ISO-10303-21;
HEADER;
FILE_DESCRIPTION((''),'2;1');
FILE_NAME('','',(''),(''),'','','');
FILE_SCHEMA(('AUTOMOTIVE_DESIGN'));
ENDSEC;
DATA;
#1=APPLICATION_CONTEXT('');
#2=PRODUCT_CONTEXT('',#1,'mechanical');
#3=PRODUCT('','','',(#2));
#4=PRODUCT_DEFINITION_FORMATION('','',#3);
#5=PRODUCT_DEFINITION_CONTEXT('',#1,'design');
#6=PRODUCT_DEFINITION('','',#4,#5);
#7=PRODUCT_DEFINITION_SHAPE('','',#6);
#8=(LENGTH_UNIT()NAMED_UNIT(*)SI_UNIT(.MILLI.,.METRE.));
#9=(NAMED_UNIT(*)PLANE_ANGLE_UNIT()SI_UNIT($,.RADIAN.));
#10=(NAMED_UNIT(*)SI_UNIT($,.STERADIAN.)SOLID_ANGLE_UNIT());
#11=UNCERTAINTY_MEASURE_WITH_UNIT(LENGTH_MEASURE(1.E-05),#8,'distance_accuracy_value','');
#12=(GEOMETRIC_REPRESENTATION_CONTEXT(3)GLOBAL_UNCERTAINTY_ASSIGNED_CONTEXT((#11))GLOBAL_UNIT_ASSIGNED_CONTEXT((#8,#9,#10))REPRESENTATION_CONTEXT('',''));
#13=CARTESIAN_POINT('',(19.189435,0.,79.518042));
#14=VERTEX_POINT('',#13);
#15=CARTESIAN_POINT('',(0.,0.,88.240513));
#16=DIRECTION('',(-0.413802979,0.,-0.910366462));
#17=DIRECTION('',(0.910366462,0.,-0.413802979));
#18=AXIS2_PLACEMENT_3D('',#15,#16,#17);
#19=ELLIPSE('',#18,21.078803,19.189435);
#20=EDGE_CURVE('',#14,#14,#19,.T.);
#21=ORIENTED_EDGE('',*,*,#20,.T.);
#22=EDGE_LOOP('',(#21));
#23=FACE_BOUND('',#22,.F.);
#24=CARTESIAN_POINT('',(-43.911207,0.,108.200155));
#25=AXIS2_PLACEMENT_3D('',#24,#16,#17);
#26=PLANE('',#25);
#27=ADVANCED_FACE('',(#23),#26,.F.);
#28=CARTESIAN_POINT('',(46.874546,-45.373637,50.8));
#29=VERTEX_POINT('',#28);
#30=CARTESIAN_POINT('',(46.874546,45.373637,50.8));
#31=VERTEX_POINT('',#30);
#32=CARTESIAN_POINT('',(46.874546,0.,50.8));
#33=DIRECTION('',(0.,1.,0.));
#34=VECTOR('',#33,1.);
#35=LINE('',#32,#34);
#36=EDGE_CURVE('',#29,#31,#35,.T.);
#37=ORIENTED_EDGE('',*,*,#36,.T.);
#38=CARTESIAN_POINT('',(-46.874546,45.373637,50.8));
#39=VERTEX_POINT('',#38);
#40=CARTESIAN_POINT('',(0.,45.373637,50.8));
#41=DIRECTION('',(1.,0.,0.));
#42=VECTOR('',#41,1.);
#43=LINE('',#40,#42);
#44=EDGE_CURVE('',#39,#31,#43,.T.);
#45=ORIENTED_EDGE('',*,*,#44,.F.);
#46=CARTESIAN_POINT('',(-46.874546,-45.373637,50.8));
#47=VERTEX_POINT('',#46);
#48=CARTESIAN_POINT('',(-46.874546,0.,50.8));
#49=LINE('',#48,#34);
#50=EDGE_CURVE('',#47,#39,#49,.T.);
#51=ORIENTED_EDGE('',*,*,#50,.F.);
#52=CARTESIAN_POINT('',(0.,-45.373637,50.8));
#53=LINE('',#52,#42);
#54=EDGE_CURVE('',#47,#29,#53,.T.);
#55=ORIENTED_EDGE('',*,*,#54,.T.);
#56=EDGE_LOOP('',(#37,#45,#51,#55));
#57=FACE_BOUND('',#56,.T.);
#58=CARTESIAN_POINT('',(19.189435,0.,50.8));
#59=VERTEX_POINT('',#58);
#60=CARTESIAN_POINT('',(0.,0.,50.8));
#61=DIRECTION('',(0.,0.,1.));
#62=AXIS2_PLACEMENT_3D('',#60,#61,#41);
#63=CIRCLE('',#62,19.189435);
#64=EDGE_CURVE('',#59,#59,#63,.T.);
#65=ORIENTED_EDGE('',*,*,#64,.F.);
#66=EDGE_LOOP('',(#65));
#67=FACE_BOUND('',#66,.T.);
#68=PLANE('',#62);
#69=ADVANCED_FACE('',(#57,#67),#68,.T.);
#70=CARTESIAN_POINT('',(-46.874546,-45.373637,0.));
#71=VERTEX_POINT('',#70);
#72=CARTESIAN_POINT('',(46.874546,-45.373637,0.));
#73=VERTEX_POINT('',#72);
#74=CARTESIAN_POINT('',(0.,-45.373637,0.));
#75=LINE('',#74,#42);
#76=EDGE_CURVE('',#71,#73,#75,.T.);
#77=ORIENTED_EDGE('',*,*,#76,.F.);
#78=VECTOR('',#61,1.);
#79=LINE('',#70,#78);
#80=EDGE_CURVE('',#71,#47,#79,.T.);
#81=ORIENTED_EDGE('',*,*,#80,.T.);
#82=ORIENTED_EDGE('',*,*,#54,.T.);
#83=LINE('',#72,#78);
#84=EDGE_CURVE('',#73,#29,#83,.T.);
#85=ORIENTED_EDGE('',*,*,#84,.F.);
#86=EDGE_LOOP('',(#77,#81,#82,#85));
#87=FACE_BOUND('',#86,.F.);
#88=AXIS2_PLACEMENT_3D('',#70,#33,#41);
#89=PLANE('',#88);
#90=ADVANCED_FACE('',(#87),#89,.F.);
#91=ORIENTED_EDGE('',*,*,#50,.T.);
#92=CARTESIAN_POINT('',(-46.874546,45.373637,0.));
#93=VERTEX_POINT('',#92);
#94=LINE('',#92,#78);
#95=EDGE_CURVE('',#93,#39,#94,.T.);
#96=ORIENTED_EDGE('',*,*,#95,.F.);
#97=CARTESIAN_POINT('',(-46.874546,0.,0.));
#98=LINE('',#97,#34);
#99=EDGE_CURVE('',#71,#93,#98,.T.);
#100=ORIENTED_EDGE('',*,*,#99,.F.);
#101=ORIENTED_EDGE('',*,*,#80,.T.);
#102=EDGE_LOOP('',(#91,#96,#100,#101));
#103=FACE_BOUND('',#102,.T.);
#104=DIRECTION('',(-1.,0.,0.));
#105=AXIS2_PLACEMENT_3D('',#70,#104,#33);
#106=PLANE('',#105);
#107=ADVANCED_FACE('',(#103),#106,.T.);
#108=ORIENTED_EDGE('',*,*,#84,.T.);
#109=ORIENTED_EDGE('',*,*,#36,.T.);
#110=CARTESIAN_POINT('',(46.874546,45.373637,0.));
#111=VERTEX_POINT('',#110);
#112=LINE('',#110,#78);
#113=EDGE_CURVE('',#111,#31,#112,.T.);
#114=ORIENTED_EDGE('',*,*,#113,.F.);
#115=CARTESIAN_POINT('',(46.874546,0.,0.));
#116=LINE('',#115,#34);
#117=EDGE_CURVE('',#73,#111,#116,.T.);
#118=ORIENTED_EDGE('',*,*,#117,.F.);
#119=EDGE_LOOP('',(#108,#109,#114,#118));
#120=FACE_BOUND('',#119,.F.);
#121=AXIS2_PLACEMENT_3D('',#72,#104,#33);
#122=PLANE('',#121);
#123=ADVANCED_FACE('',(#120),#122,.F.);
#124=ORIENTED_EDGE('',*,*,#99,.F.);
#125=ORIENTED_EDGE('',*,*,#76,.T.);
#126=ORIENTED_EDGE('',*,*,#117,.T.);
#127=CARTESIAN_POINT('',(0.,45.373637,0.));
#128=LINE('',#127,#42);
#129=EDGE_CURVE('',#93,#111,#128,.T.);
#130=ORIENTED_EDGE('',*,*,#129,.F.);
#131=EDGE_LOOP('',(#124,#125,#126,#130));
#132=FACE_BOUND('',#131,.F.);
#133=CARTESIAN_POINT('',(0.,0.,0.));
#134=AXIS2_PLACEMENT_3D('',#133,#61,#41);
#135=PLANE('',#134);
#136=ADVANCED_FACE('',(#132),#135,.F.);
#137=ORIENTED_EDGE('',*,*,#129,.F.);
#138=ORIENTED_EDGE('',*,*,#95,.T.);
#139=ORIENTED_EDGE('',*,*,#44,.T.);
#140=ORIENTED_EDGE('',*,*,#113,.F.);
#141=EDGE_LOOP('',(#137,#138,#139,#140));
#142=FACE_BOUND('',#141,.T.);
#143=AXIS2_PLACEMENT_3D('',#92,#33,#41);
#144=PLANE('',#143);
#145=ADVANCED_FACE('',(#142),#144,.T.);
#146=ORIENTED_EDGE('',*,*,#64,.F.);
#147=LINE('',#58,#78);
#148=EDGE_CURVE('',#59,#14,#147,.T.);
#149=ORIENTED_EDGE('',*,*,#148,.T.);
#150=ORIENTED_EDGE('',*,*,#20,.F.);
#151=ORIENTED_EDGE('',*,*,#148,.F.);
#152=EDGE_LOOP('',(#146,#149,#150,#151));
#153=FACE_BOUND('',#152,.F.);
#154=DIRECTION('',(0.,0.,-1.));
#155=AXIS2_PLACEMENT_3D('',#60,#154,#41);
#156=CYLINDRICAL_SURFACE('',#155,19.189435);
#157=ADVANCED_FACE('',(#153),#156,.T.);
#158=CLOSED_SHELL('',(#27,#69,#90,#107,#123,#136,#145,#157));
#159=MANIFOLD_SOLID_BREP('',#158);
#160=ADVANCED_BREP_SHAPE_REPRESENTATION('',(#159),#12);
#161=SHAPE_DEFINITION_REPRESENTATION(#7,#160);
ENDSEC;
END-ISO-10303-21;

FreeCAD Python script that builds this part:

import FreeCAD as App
import Part
import Sketcher

V = App.Vector
Q = App.Units.Quantity

doc = App.newDocument("Part")
params = doc.addObject("Spreadsheet::Sheet", "Params")
for row, (alias, value) in enumerate([
    ("pad1_length", "2 in"),
    ("pad2_length", "2 in"),
    ("pocket1_length", "5.32 in"),
], start=1):
    params.set(f"A{row}", alias)
    params.set(f"B{row}", "=" + value)
    params.setAlias(f"B{row}", alias)

body = doc.addObject("PartDesign::Body", "Body")

sketch1 = body.newObject("Sketcher::SketchObject", "Sketch")
sketch1.AttachmentSupport = (doc.getObject("XY_Plane"), [""])
sketch1.MapMode = "FlatFace"
sketch1.addGeometry([
    Part.LineSegment(V(-47, 45, 0), V(-47, -45, 0)),
    Part.LineSegment(V(-47, -45, 0), V(47, -45, 0)),
    Part.LineSegment(V(47, -45, 0), V(47, 45, 0)),
    Part.LineSegment(V(47, 45, 0), V(-47, 45, 0)),
], False)
sketch1.addConstraint([
    Sketcher.Constraint("Coincident", 0, 2, 1, 1),
    Sketcher.Constraint("Coincident", 1, 2, 2, 1),
    Sketcher.Constraint("Coincident", 2, 2, 3, 1),
    Sketcher.Constraint("Coincident", 3, 2, 0, 1),
    Sketcher.Constraint("Vertical", 0),
    Sketcher.Constraint("Horizontal", 1),
    Sketcher.Constraint("Vertical", 2),
    Sketcher.Constraint("Horizontal", 3),
    Sketcher.Constraint("Symmetric", 0, 2, 2, 2, -1, 1),
    Sketcher.Constraint("DistanceX", 1, 1, 1, 2, Q("93.749092 mm")),
    Sketcher.Constraint("DistanceY", 0, 2, 0, 1, Q("90.747274 mm")),
])
pad1 = body.newObject("PartDesign::Pad", "Pad")
pad1.Profile = sketch1
pad1.setExpression("Length", "Params.pad1_length")

sketch2 = body.newObject("Sketcher::SketchObject", "Sketch001")
sketch2.AttachmentSupport = (doc.getObject("XY_Plane"), [""])
sketch2.MapMode = "FlatFace"
sketch2.AttachmentOffset = App.Placement(V(0, 0, 2 * 25.4), App.Rotation())
sketch2.addGeometry(Part.Circle(V(0, 0, 0), V(0, 0, 1), 19), False)
sketch2.addConstraint([
    Sketcher.Constraint("Coincident", 0, 3, -1, 1),
    Sketcher.Constraint("Diameter", 0, Q("38.37887 mm")),
])
pad2 = body.newObject("PartDesign::Pad", "Pad001")
pad2.Profile = sketch2
pad2.setExpression("Length", "Params.pad2_length")

sketch3 = body.newObject("Sketcher::SketchObject", "Sketch002")
sketch3.AttachmentSupport = (doc.getObject("XZ_Plane"), [""])
sketch3.MapMode = "FlatFace"
sketch3.addGeometry([
    Part.LineSegment(V(60, 108, 0), V(-44, 108, 0)),
    Part.LineSegment(V(-44, 108, 0), V(60, 61, 0)),
    Part.LineSegment(V(60, 61, 0), V(60, 108, 0)),
], False)
sketch3.addConstraint([
    Sketcher.Constraint("Coincident", 0, 2, 1, 1),
    Sketcher.Constraint("Coincident", 1, 2, 2, 1),
    Sketcher.Constraint("Coincident", 2, 2, 0, 1),
    Sketcher.Constraint("Horizontal", 0),
    Sketcher.Constraint("Vertical", 2),
    Sketcher.Constraint("DistanceX", 0, 2, 0, 1, Q("103.716664 mm")),
    Sketcher.Constraint("DistanceY", 2, 1, 2, 2, Q("47.143943 mm")),
    Sketcher.Constraint("DistanceX", 0, 2, -1, 1, Q("43.911207 mm")),
    Sketcher.Constraint("DistanceY", -1, 1, 0, 2, Q("108.200155 mm")),
])
pocket1 = body.newObject("PartDesign::Pocket", "Pocket")
pocket1.Profile = sketch3
pocket1.setExpression("Length", "Params.pocket1_length")
pocket1.Midplane = True

doc.recompute()
